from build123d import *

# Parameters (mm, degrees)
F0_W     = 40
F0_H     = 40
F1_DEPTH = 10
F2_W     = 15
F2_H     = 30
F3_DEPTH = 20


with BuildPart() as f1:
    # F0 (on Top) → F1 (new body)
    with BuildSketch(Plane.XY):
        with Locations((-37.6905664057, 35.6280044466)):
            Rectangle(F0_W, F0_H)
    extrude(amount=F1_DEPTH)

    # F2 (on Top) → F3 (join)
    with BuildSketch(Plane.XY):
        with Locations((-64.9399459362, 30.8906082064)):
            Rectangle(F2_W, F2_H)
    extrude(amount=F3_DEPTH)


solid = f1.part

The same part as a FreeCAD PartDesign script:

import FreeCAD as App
import Part
import Sketcher

V = App.Vector
Q = App.Units.Quantity

doc = App.newDocument("Part")
body = doc.addObject("PartDesign::Body", "Body")

sketch1 = body.newObject("Sketcher::SketchObject", "Sketch")
sketch1.AttachmentSupport = (doc.getObject("XY_Plane"), [""])
sketch1.MapMode = "FlatFace"
sketch1.addGeometry([
    Part.LineSegment(V(-58, 56, 0), V(-58, 16, 0)),
    Part.LineSegment(V(-58, 16, 0), V(-18, 16, 0)),
    Part.LineSegment(V(-18, 16, 0), V(-18, 56, 0)),
    Part.LineSegment(V(-18, 56, 0), V(-58, 56, 0)),
], False)
sketch1.addConstraint([
    Sketcher.Constraint("Coincident", 0, 2, 1, 1),
    Sketcher.Constraint("Coincident", 1, 2, 2, 1),
    Sketcher.Constraint("Coincident", 2, 2, 3, 1),
    Sketcher.Constraint("Coincident", 3, 2, 0, 1),
    Sketcher.Constraint("Vertical", 0),
    Sketcher.Constraint("Horizontal", 1),
    Sketcher.Constraint("Vertical", 2),
    Sketcher.Constraint("Horizontal", 3),
    Sketcher.Constraint("Equal", 3, 0),
    Sketcher.Constraint("DistanceX", 1, 1, 1, 2, Q("40 mm")),
    Sketcher.Constraint("DistanceX", 0, 2, -1, 1, Q("57.690566 mm")),
    Sketcher.Constraint("DistanceY", -1, 1, 0, 2, Q("15.628004 mm")),
])
pad1 = body.newObject("PartDesign::Pad", "Pad")
pad1.Profile = sketch1
pad1.Length = 10

sketch2 = body.newObject("Sketcher::SketchObject", "Sketch001")
sketch2.AttachmentSupport = (doc.getObject("XY_Plane"), [""])
sketch2.MapMode = "FlatFace"
sketch2.addGeometry([
    Part.LineSegment(V(-72, 46, 0), V(-72, 16, 0)),
    Part.LineSegment(V(-72, 16, 0), V(-57, 16, 0)),
    Part.LineSegment(V(-57, 16, 0), V(-57, 46, 0)),
    Part.LineSegment(V(-57, 46, 0), V(-72, 46, 0)),
], False)
sketch2.addConstraint([
    Sketcher.Constraint("Coincident", 0, 2, 1, 1),
    Sketcher.Constraint("Coincident", 1, 2, 2, 1),
    Sketcher.Constraint("Coincident", 2, 2, 3, 1),
    Sketcher.Constraint("Coincident", 3, 2, 0, 1),
    Sketcher.Constraint("Vertical", 0),
    Sketcher.Constraint("Horizontal", 1),
    Sketcher.Constraint("Vertical", 2),
    Sketcher.Constraint("Horizontal", 3),
    Sketcher.Constraint("DistanceX", 1, 1, 1, 2, Q("15 mm")),
    Sketcher.Constraint("DistanceY", 0, 2, 0, 1, Q("30 mm")),
    Sketcher.Constraint("DistanceY", -1, 1, 0, 2, Q("15.890608 mm")),
    Sketcher.Constraint("DistanceX", 0, 2, -1, 1, Q("72.439946 mm")),
])
pad2 = body.newObject("PartDesign::Pad", "Pad001")
pad2.Profile = sketch2
pad2.Length = 20

doc.recompute()
